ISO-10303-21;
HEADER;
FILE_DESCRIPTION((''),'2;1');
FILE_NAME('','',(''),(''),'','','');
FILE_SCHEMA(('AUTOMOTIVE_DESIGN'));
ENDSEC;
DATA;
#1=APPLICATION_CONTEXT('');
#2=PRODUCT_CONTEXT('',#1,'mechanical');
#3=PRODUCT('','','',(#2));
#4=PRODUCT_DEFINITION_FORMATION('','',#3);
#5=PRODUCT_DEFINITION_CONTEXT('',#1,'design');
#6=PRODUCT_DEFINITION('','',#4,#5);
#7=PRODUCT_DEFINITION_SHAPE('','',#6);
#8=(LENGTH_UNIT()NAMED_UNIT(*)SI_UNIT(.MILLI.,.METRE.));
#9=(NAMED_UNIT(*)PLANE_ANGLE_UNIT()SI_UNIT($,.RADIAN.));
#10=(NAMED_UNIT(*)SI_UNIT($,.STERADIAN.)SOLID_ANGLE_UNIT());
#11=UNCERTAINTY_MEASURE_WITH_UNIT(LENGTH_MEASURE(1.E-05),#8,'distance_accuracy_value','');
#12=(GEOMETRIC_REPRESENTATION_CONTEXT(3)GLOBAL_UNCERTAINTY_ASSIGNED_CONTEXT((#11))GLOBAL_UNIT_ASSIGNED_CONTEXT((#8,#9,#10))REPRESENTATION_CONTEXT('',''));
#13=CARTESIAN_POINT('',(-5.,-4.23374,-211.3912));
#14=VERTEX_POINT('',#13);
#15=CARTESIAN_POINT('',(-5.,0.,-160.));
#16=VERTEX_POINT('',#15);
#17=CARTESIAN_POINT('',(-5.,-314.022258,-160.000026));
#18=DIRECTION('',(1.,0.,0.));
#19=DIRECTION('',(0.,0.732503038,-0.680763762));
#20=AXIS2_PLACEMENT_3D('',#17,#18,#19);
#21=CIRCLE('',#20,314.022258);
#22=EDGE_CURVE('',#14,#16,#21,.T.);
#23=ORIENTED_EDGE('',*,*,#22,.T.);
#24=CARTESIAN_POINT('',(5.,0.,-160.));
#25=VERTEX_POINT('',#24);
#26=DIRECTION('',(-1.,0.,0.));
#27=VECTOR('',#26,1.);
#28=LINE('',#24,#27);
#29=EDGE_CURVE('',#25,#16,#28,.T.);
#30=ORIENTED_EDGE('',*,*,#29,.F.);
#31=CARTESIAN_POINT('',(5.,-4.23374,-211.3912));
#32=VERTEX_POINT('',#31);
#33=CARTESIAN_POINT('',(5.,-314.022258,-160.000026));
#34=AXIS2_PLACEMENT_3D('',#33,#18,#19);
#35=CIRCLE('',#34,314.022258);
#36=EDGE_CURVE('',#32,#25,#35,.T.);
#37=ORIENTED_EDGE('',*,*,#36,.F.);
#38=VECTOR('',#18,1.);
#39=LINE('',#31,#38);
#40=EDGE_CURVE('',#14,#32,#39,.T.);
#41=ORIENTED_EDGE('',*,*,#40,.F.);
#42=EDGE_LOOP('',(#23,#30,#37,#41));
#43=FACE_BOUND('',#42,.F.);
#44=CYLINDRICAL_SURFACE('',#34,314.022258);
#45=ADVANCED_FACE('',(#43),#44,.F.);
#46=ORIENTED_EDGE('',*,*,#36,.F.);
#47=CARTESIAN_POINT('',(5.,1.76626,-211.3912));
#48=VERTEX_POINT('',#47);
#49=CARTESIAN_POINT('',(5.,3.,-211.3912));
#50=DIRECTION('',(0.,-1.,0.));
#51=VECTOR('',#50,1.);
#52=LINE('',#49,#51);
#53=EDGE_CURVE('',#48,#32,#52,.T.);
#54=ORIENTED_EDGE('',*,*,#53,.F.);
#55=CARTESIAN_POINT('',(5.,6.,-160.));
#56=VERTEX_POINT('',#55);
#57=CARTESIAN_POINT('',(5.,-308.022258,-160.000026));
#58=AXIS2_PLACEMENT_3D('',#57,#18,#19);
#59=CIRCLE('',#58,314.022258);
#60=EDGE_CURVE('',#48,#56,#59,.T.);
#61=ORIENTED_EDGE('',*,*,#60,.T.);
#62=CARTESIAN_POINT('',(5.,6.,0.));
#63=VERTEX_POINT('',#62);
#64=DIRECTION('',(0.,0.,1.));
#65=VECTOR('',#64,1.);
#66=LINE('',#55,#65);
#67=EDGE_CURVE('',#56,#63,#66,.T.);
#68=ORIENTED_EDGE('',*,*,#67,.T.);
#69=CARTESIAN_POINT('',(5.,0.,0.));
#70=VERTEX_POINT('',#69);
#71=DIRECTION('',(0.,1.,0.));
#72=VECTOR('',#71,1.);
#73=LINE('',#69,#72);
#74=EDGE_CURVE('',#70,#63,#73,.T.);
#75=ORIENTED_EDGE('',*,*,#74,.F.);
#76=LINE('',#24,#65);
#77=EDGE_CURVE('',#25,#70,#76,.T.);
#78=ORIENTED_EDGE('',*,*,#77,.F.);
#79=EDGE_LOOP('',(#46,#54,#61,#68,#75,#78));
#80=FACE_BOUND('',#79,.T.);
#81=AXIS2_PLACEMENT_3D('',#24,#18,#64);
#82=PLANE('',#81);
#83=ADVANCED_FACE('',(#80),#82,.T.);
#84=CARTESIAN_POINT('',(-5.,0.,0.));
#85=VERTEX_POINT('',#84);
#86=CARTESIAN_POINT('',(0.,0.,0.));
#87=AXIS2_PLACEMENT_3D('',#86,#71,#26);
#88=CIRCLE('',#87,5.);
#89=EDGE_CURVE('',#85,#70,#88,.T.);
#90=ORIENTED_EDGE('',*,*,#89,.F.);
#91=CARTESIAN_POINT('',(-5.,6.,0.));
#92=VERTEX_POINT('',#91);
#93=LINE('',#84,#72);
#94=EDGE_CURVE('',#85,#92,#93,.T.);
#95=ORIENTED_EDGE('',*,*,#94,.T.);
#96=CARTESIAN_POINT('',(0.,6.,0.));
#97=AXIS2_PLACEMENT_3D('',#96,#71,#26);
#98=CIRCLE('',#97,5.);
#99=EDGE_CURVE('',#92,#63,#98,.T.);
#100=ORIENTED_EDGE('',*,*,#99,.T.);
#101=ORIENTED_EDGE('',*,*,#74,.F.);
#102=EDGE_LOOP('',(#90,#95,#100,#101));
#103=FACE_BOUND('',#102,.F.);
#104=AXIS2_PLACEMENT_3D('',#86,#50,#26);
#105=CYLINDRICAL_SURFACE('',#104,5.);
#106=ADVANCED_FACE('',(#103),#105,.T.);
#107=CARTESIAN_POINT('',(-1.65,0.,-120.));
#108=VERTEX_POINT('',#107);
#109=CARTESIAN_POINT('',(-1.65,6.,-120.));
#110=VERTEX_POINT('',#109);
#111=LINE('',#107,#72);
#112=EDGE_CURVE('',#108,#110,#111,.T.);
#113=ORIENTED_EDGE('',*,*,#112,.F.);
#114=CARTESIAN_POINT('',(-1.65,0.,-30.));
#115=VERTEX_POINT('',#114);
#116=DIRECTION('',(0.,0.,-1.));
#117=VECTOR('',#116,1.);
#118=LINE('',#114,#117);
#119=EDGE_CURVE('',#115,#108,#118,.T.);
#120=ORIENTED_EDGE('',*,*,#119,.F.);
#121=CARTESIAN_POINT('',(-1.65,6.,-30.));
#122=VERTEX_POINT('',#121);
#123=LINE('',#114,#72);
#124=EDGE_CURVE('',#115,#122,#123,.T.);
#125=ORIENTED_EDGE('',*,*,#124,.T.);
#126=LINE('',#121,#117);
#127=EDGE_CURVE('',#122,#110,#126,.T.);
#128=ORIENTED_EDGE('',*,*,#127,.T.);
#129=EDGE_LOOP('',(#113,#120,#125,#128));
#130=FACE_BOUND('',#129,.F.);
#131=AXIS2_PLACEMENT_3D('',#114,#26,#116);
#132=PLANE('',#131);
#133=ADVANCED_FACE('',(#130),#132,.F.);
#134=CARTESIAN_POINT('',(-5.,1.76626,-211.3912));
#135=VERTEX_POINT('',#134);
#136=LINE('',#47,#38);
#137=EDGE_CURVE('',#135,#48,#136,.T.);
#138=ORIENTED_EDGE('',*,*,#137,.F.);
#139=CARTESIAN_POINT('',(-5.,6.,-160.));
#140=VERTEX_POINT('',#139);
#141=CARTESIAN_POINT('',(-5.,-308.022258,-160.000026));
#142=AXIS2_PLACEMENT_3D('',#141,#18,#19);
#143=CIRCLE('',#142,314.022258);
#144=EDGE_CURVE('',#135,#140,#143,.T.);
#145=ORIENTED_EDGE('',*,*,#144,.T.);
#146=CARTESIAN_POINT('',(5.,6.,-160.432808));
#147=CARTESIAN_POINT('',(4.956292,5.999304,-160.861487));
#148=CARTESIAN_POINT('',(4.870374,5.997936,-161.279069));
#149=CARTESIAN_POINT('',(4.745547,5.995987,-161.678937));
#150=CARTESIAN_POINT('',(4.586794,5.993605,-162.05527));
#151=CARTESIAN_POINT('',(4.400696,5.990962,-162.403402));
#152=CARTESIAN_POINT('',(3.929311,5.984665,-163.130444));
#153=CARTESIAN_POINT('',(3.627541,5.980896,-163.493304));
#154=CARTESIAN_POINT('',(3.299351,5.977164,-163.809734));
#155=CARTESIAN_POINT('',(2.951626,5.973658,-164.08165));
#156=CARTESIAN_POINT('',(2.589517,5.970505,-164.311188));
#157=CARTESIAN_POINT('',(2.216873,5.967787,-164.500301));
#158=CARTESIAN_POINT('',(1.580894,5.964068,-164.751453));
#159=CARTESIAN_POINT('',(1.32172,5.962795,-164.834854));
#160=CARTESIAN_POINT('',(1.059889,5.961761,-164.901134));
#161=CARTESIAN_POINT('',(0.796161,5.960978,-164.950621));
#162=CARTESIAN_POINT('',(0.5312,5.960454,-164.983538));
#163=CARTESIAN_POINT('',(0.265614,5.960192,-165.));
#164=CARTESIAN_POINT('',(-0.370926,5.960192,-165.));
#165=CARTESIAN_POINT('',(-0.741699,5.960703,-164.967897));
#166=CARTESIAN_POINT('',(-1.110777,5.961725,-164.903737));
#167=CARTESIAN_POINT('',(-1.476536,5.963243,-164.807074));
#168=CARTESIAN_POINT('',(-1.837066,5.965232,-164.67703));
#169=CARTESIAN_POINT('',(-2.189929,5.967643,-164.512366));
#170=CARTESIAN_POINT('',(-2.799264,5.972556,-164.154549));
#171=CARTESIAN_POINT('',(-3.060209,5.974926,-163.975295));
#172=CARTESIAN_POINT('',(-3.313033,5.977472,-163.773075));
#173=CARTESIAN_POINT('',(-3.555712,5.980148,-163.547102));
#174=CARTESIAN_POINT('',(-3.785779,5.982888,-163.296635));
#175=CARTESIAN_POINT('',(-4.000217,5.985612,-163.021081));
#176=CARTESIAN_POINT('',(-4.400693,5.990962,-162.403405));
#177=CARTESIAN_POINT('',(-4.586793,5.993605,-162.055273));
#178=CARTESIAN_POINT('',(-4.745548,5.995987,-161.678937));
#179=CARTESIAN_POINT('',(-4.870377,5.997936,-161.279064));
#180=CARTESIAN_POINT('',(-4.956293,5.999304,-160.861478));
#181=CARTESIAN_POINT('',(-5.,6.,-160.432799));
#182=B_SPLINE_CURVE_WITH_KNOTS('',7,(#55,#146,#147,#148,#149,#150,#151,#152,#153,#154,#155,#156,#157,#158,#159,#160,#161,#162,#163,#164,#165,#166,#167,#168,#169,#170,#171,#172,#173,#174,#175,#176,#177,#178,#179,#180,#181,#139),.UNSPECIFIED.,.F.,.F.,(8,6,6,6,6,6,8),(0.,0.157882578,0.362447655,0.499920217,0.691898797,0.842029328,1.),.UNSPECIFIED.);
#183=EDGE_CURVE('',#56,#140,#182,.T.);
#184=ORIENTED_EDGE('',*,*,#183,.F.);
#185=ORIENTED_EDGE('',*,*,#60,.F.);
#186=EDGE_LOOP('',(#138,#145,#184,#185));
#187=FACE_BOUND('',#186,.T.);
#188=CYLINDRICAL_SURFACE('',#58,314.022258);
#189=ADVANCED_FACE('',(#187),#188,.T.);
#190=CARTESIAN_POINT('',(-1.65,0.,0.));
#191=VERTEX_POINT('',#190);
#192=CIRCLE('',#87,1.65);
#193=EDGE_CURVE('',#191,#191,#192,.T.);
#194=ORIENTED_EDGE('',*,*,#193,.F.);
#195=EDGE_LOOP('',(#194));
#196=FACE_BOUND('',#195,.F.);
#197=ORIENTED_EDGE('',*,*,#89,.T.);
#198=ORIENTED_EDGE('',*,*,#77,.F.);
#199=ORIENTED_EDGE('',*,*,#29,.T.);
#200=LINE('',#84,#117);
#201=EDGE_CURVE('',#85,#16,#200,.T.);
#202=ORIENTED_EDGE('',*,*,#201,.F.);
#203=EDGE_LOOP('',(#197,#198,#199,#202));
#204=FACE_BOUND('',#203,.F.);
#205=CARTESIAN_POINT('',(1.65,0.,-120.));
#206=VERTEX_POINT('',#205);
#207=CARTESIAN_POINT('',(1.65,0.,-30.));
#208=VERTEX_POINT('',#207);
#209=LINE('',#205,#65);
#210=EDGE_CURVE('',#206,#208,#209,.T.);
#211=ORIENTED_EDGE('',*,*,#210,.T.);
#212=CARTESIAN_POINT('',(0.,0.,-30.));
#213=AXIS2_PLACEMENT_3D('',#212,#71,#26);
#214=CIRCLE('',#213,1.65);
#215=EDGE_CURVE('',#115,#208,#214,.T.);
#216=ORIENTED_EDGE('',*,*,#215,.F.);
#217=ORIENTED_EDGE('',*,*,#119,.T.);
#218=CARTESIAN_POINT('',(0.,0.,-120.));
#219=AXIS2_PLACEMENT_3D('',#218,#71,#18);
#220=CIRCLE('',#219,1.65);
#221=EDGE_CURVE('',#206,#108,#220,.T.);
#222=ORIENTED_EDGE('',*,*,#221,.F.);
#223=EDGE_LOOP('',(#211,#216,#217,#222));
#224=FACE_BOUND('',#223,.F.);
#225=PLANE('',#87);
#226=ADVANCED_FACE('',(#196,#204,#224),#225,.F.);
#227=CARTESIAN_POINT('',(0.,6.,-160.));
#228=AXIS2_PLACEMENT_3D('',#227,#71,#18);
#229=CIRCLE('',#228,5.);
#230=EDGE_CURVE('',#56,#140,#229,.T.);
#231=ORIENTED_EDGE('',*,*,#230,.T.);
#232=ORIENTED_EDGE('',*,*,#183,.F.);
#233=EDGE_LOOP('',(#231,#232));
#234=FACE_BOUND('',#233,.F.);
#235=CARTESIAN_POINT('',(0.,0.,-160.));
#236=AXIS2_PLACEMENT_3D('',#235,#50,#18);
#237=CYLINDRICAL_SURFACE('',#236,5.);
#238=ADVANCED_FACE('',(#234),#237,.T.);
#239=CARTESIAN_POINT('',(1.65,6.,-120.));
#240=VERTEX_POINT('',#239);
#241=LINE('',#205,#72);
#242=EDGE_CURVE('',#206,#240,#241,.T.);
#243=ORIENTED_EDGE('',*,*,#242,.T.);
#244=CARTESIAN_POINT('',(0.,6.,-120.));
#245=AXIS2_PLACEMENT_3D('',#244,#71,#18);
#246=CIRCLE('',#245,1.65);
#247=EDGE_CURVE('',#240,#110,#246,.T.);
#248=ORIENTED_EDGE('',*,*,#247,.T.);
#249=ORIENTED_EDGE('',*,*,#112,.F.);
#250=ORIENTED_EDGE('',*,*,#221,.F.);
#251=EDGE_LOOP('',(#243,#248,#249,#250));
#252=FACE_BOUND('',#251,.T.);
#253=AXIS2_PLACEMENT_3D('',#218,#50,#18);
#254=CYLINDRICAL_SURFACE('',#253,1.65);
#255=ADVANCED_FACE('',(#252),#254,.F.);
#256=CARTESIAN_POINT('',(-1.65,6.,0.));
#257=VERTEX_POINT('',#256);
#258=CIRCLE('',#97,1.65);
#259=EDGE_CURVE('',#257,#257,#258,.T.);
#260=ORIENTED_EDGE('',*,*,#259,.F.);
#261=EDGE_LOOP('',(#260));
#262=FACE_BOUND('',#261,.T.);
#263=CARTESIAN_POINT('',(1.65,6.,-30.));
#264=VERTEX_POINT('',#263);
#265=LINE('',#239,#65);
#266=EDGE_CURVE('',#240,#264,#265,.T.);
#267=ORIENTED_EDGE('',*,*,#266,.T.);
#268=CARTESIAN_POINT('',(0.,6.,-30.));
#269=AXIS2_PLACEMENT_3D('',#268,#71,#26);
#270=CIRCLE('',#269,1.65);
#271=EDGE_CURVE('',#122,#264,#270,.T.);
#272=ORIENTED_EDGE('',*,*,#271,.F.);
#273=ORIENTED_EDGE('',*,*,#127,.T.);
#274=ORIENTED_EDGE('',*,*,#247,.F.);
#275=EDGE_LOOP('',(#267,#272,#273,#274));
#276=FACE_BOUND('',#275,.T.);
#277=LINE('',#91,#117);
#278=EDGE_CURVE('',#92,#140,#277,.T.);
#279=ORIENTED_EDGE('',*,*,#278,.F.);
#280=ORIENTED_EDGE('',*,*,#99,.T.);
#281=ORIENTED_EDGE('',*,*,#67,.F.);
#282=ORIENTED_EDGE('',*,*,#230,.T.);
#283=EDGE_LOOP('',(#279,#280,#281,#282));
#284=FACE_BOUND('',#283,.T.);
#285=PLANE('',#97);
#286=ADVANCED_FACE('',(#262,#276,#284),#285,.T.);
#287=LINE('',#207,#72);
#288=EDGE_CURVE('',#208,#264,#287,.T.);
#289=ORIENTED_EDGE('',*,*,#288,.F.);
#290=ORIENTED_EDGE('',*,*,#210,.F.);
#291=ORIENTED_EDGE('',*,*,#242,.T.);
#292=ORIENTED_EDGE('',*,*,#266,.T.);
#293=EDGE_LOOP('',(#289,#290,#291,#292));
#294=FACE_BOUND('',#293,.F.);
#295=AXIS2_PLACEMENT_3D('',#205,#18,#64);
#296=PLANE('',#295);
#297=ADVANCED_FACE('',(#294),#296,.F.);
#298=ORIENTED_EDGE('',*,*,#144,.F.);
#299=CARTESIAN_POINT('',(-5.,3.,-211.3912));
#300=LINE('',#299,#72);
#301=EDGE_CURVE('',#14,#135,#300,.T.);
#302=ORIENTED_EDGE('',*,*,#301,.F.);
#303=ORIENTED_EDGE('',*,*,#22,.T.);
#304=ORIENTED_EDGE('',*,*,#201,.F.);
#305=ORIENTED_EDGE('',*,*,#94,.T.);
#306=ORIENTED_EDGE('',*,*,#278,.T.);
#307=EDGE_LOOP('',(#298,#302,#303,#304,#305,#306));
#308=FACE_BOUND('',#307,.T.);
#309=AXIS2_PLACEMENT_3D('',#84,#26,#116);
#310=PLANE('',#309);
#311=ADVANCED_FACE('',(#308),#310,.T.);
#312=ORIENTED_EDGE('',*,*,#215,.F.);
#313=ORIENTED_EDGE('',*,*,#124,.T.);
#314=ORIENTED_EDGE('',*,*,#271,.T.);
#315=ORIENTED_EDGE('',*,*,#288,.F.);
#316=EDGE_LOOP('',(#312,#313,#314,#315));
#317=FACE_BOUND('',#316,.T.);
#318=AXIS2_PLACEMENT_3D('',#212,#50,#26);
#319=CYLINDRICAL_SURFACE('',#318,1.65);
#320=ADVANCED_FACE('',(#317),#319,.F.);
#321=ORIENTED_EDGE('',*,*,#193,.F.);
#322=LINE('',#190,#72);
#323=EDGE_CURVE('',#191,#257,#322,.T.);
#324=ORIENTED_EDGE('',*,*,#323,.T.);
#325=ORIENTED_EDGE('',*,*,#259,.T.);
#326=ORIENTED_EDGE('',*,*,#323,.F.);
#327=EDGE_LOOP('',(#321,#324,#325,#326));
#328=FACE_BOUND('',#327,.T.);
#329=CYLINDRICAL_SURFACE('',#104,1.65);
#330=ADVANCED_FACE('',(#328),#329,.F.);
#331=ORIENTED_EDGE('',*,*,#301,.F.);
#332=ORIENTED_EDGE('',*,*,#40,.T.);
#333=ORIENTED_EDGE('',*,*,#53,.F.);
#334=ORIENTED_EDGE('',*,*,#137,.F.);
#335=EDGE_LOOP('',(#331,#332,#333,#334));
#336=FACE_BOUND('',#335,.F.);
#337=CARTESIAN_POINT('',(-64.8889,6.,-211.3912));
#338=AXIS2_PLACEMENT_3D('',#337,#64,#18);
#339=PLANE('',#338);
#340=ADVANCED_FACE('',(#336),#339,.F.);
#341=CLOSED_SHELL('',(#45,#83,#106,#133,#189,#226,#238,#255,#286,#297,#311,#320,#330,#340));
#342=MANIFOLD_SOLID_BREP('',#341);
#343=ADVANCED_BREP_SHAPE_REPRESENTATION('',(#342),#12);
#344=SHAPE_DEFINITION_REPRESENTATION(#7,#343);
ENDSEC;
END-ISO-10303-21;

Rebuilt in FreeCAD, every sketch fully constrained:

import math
import FreeCAD as App
import Part
import Sketcher


def edges_at(feature, points):
    """Names of the edges that pass closest to the given points."""
    edges = feature.Shape.Edges
    near = lambda p: min(range(len(edges)), key=lambda i: edges[i].distToShape(Part.Vertex(*p))[0])
    return sorted({f"Edge{near(p) + 1}" for p in points})


def add_polygon(sketch, points):
    """Adds a closed chain of lines whose ends are joined by coincident constraints."""
    first, n = sketch.GeometryCount, len(points)
    for a, b in zip(points, points[1:] + points[:1]):
        sketch.addGeometry(Part.LineSegment(App.Vector(*a, 0), App.Vector(*b, 0)), False)
    for i in range(n):
        sketch.addConstraint(Sketcher.Constraint("Coincident", first + i, 2, first + (i + 1) % n, 1))

doc = App.newDocument("Part")
params = doc.addObject("Spreadsheet::Sheet", "Params")
for row, (alias, value) in enumerate([
    ("sketch1_radius", "5 mm"),
    ("sketch1_diameter", "3.3 mm"),
    ("sketch1_height", "160 mm"),
    ("pad1_length", "6 mm"),
    ("sketch2_width", "6 mm"),
    ("pad2_length", "10 mm"),
    ("fillet_radius", "2 mm"),
    ("pocket1_length", "100 mm"),
], start=1):
    params.set(f"A{row}", alias)
    params.set(f"B{row}", "=" + value)
    params.setAlias(f"B{row}", alias)

body = doc.addObject("PartDesign::Body", "Body")

# Sketch on XZ plane
sketch1 = body.newObject("Sketcher::SketchObject", "Sketch")
sketch1.AttachmentSupport = (doc.getObject("XZ_Plane"), [""])
sketch1.MapMode = "FlatFace"
sketch1.addGeometry([
    Part.LineSegment(App.Vector(-5, -160, 0), App.Vector(-5, 0, 0)),  # 0
    Part.ArcOfCircle(Part.Circle(App.Vector(0, 0, 0), App.Vector(0, 0, 1), 5), math.radians(0), math.radians(180)),  # 1
    Part.LineSegment(App.Vector(5, 0, 0), App.Vector(5, -160, 0)),  # 2
    Part.ArcOfCircle(Part.Circle(App.Vector(0, -160, 0), App.Vector(0, 0, 1), 5), math.radians(180), math.radians(360)),  # 3
    Part.ArcOfCircle(Part.Circle(App.Vector(0, -30, 0), App.Vector(0, 0, 1), 1.6), math.radians(0), math.radians(180)),  # 4
    Part.LineSegment(App.Vector(-1.6, -30, 0), App.Vector(-1.6, -120, 0)),  # 5
    Part.ArcOfCircle(Part.Circle(App.Vector(0, -120, 0), App.Vector(0, 0, 1), 1.6), math.radians(180), math.radians(360)),  # 6
    Part.LineSegment(App.Vector(1.6, -120, 0), App.Vector(1.6, -30, 0)),  # 7
    Part.Circle(App.Vector(0, 0, 0), App.Vector(0, 0, 1), 1.6),  # 8
], False)
sketch1.addConstraint([
    Sketcher.Constraint("Tangent", 0, 2, 1, 2),
    Sketcher.Constraint("Tangent", 1, 1, 2, 1),
    Sketcher.Constraint("Tangent", 2, 2, 3, 2),
    Sketcher.Constraint("Tangent", 3, 1, 0, 1),
    Sketcher.Constraint("Tangent", 4, 2, 5, 1),
    Sketcher.Constraint("Tangent", 5, 2, 6, 1),
    Sketcher.Constraint("Tangent", 6, 2, 7, 1),
    Sketcher.Constraint("Tangent", 7, 2, 4, 1),
    Sketcher.Constraint("Vertical", 0),
    Sketcher.Constraint("Vertical", 2),
    Sketcher.Constraint("Vertical", 5),
    Sketcher.Constraint("Vertical", 7),
    Sketcher.Constraint("Coincident", 1, 3, -1, 1),
    Sketcher.Constraint("Coincident", 8, 3, -1, 1),
    Sketcher.Constraint("Equal", 6, 8),
    Sketcher.Constraint("PointOnObject", 4, 3, -2),
    Sketcher.Constraint("Radius", 1, 5.0),
    Sketcher.Constraint("Diameter", 8, 3.3),
    Sketcher.Constraint("DistanceY", 0, 1, 0, 2, 160.0),
    Sketcher.Constraint("DistanceY", 4, 3, -1, 1, 30.0),
    Sketcher.Constraint("DistanceY", 6, 3, -1, 1, 120.0),
])
sketch1.setExpression("Constraints[16]", "Params.sketch1_radius")
sketch1.setExpression("Constraints[17]", "Params.sketch1_diameter")
sketch1.setExpression("Constraints[18]", "Params.sketch1_height")
pad1 = body.newObject("PartDesign::Pad", "Pad")
pad1.Profile = sketch1
pad1.setExpression("Length", "Params.pad1_length")
pad1.Reversed = True

# Sketch on YZ plane
sketch2 = body.newObject("Sketcher::SketchObject", "Sketch001")
sketch2.AttachmentSupport = (doc.getObject("YZ_Plane"), [""])
sketch2.MapMode = "FlatFace"
sketch2.AttachmentOffset = App.Placement(App.Vector(0, 0, 5), App.Rotation())
sketch2.addGeometry([
    Part.LineSegment(App.Vector(6, -160, 0), App.Vector(0, -160, 0)),
    Part.ArcOfCircle(Part.Circle(App.Vector(-314, -160, 0), App.Vector(0, 0, 1), 314), math.radians(-43), math.radians(0)),
    Part.LineSegment(App.Vector(-84, -374, 0), App.Vector(-78, -374, 0)),
    Part.ArcOfCircle(Part.Circle(App.Vector(-308, -160, 0), App.Vector(0, 0, 1), 314), math.radians(-43), math.radians(0)),
], False)
sketch2.addConstraint([
    Sketcher.Constraint("Coincident", 0, 2, 1, 2),
    Sketcher.Constraint("Coincident", 1, 1, 2, 1),
    Sketcher.Constraint("Coincident", 2, 2, 3, 1),
    Sketcher.Constraint("Coincident", 3, 2, 0, 1),
    Sketcher.Constraint("Horizontal", 0),
    Sketcher.Constraint("Horizontal", 2),
    Sketcher.Constraint("Equal", 1, 3),
    Sketcher.Constraint("PointOnObject", 0, 2, -2),
    Sketcher.Constraint("Horizontal", 1, 3, 3, 3),
    Sketcher.Constraint("Horizontal", 3, 3, 0, 2),
    Sketcher.Constraint("DistanceX", 0, 2, 0, 1, 6.0),
    Sketcher.Constraint("DistanceX", 1, 1, 3, 2, 90.0),
    Sketcher.Constraint("DistanceY", 1, 3, -1, 1, 160.0),
    Sketcher.Constraint("DistanceY", 2, 2, -1, 1, 373.775),
])
sketch2.setExpression("Constraints[10]", "Params.sketch2_width")
pad2 = body.newObject("PartDesign::Pad", "Pad001")
pad2.Profile = sketch2
pad2.setExpression("Length", "Params.pad2_length")
pad2.Reversed = True
doc.recompute()

fillet = body.newObject("PartDesign::Fillet", "Fillet")
fillet.Base = (pad2, edges_at(pad2, [
    (0, -78, -373.775),
    (5, -81, -373.775),
    (-5, -81, -373.775),
    (0, -84, -373.775),
]))
fillet.setExpression("Radius", "Params.fillet_radius")

# Sketch on XZ plane
sketch3 = body.newObject("Sketcher::SketchObject", "Sketch002")
sketch3.AttachmentSupport = (doc.getObject("XZ_Plane"), [""])
sketch3.MapMode = "FlatFace"
sketch3.AttachmentOffset = App.Placement(App.Vector(0, 0, -6), App.Rotation())
add_polygon(sketch3, [(101, -397), (-92, -397), (-92, 56), (101, 56)])  # lines 0-3
add_polygon(sketch3, [(37, -211), (37, 17), (-65, 17), (-65, -211)])  # lines 4-7
sketch3.addConstraint([
    Sketcher.Constraint("Horizontal", 0),
    Sketcher.Constraint("Vertical", 1),
    Sketcher.Constraint("Horizontal", 2),
    Sketcher.Constraint("Vertical", 3),
    Sketcher.Constraint("Vertical", 4),
    Sketcher.Constraint("Horizontal", 5),
    Sketcher.Constraint("Vertical", 6),
    Sketcher.Constraint("Horizontal", 7),
    Sketcher.Constraint("DistanceX", 0, 2, 0, 1, 193.3627),
    Sketcher.Constraint("DistanceX", 5, 2, 5, 1, 101.5663),
    Sketcher.Constraint("DistanceY", 1, 1, 1, 2, 453.2422),
    Sketcher.Constraint("DistanceY", 4, 1, 4, 2, 228.3233),
    Sketcher.Constraint("DistanceX", -1, 1, 2, 2, 101.238),
    Sketcher.Constraint("DistanceY", -1, 1, 4, 2, 16.932),
    Sketcher.Constraint("DistanceX", 5, 2, -1, 1, 64.889),
    Sketcher.Constraint("DistanceY", 0, 2, -1, 1, 397.3107),
])
pocket1 = body.newObject("PartDesign::Pocket", "Pocket")
pocket1.Profile = sketch3
pocket1.setExpression("Length", "Params.pocket1_length")
pocket1.Reversed = True

doc.recompute()
